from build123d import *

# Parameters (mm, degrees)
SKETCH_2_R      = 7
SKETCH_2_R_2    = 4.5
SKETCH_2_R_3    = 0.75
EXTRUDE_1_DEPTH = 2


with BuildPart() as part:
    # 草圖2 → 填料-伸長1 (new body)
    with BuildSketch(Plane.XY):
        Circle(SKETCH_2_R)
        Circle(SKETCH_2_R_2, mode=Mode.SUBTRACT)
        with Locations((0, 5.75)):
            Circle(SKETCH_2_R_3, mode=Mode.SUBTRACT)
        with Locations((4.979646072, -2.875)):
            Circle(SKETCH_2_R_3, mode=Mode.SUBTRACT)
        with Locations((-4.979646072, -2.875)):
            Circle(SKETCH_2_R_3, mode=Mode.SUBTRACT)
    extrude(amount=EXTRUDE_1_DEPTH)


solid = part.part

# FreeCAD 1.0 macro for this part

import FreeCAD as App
import Part
import Sketcher

V = App.Vector
Q = App.Units.Quantity

doc = App.newDocument("Part")
params = doc.addObject("Spreadsheet::Sheet", "Params")
for row, (alias, value) in enumerate([
    ("sketch1_diameter", "14 mm"),
    ("sketch1_diameter2", "9 mm"),
    ("sketch1_diameter3", "1.5 mm"),
    ("pad1_length", "2 mm"),
], start=1):
    params.set(f"A{row}", alias)
    params.set(f"B{row}", "=" + value)
    params.setAlias(f"B{row}", alias)

body = doc.addObject("PartDesign::Body", "Body")

# Sketch on XY plane
sketch1 = body.newObject("Sketcher::SketchObject", "Sketch")
sketch1.AttachmentSupport = (doc.getObject("XY_Plane"), [""])
sketch1.MapMode = "FlatFace"
sketch1.addGeometry([
    Part.Circle(V(0, 0, 0), V(0, 0, 1), 7),  # 0
    Part.Circle(V(-5, -2.9, 0), V(0, 0, 1), 0.8),  # 1
    Part.Circle(V(5, -2.9, 0), V(0, 0, 1), 0.8),  # 2
    Part.Circle(V(0, 0, 0), V(0, 0, 1), 4.5),  # 3
    Part.Circle(V(0, 5.8, 0), V(0, 0, 1), 0.8),  # 4
], False)
sketch1.addConstraint([
    Sketcher.Constraint("Coincident", 0, 3, -1, 1),
    Sketcher.Constraint("Coincident", 3, 3, -1, 1),
    Sketcher.Constraint("Equal", 1, 2),
    Sketcher.Constraint("Equal", 2, 4),
    Sketcher.Constraint("Symmetric", 1, 3, 2, 3, -2),
    Sketcher.Constraint("PointOnObject", 4, 3, -2),
    Sketcher.Constraint("Diameter", 0, Q("14 mm")),
    Sketcher.Constraint("Diameter", 3, Q("9 mm")),
    Sketcher.Constraint("Diameter", 1, Q("1.5 mm")),
    Sketcher.Constraint("DistanceY", -1, 1, 4, 3, Q("5.75 mm")),
    Sketcher.Constraint("DistanceY", 1, 3, -1, 1, Q("2.875 mm")),
    Sketcher.Constraint("DistanceX", 1, 3, -1, 1, Q("4.979646 mm")),
])
sketch1.setExpression("Constraints[6]", "Params.sketch1_diameter")
sketch1.setExpression("Constraints[7]", "Params.sketch1_diameter2")
sketch1.setExpression("Constraints[8]", "Params.sketch1_diameter3")
pad1 = body.newObject("PartDesign::Pad", "Pad")
pad1.Profile = sketch1
pad1.setExpression("Length", "Params.pad1_length")

doc.recompute()
